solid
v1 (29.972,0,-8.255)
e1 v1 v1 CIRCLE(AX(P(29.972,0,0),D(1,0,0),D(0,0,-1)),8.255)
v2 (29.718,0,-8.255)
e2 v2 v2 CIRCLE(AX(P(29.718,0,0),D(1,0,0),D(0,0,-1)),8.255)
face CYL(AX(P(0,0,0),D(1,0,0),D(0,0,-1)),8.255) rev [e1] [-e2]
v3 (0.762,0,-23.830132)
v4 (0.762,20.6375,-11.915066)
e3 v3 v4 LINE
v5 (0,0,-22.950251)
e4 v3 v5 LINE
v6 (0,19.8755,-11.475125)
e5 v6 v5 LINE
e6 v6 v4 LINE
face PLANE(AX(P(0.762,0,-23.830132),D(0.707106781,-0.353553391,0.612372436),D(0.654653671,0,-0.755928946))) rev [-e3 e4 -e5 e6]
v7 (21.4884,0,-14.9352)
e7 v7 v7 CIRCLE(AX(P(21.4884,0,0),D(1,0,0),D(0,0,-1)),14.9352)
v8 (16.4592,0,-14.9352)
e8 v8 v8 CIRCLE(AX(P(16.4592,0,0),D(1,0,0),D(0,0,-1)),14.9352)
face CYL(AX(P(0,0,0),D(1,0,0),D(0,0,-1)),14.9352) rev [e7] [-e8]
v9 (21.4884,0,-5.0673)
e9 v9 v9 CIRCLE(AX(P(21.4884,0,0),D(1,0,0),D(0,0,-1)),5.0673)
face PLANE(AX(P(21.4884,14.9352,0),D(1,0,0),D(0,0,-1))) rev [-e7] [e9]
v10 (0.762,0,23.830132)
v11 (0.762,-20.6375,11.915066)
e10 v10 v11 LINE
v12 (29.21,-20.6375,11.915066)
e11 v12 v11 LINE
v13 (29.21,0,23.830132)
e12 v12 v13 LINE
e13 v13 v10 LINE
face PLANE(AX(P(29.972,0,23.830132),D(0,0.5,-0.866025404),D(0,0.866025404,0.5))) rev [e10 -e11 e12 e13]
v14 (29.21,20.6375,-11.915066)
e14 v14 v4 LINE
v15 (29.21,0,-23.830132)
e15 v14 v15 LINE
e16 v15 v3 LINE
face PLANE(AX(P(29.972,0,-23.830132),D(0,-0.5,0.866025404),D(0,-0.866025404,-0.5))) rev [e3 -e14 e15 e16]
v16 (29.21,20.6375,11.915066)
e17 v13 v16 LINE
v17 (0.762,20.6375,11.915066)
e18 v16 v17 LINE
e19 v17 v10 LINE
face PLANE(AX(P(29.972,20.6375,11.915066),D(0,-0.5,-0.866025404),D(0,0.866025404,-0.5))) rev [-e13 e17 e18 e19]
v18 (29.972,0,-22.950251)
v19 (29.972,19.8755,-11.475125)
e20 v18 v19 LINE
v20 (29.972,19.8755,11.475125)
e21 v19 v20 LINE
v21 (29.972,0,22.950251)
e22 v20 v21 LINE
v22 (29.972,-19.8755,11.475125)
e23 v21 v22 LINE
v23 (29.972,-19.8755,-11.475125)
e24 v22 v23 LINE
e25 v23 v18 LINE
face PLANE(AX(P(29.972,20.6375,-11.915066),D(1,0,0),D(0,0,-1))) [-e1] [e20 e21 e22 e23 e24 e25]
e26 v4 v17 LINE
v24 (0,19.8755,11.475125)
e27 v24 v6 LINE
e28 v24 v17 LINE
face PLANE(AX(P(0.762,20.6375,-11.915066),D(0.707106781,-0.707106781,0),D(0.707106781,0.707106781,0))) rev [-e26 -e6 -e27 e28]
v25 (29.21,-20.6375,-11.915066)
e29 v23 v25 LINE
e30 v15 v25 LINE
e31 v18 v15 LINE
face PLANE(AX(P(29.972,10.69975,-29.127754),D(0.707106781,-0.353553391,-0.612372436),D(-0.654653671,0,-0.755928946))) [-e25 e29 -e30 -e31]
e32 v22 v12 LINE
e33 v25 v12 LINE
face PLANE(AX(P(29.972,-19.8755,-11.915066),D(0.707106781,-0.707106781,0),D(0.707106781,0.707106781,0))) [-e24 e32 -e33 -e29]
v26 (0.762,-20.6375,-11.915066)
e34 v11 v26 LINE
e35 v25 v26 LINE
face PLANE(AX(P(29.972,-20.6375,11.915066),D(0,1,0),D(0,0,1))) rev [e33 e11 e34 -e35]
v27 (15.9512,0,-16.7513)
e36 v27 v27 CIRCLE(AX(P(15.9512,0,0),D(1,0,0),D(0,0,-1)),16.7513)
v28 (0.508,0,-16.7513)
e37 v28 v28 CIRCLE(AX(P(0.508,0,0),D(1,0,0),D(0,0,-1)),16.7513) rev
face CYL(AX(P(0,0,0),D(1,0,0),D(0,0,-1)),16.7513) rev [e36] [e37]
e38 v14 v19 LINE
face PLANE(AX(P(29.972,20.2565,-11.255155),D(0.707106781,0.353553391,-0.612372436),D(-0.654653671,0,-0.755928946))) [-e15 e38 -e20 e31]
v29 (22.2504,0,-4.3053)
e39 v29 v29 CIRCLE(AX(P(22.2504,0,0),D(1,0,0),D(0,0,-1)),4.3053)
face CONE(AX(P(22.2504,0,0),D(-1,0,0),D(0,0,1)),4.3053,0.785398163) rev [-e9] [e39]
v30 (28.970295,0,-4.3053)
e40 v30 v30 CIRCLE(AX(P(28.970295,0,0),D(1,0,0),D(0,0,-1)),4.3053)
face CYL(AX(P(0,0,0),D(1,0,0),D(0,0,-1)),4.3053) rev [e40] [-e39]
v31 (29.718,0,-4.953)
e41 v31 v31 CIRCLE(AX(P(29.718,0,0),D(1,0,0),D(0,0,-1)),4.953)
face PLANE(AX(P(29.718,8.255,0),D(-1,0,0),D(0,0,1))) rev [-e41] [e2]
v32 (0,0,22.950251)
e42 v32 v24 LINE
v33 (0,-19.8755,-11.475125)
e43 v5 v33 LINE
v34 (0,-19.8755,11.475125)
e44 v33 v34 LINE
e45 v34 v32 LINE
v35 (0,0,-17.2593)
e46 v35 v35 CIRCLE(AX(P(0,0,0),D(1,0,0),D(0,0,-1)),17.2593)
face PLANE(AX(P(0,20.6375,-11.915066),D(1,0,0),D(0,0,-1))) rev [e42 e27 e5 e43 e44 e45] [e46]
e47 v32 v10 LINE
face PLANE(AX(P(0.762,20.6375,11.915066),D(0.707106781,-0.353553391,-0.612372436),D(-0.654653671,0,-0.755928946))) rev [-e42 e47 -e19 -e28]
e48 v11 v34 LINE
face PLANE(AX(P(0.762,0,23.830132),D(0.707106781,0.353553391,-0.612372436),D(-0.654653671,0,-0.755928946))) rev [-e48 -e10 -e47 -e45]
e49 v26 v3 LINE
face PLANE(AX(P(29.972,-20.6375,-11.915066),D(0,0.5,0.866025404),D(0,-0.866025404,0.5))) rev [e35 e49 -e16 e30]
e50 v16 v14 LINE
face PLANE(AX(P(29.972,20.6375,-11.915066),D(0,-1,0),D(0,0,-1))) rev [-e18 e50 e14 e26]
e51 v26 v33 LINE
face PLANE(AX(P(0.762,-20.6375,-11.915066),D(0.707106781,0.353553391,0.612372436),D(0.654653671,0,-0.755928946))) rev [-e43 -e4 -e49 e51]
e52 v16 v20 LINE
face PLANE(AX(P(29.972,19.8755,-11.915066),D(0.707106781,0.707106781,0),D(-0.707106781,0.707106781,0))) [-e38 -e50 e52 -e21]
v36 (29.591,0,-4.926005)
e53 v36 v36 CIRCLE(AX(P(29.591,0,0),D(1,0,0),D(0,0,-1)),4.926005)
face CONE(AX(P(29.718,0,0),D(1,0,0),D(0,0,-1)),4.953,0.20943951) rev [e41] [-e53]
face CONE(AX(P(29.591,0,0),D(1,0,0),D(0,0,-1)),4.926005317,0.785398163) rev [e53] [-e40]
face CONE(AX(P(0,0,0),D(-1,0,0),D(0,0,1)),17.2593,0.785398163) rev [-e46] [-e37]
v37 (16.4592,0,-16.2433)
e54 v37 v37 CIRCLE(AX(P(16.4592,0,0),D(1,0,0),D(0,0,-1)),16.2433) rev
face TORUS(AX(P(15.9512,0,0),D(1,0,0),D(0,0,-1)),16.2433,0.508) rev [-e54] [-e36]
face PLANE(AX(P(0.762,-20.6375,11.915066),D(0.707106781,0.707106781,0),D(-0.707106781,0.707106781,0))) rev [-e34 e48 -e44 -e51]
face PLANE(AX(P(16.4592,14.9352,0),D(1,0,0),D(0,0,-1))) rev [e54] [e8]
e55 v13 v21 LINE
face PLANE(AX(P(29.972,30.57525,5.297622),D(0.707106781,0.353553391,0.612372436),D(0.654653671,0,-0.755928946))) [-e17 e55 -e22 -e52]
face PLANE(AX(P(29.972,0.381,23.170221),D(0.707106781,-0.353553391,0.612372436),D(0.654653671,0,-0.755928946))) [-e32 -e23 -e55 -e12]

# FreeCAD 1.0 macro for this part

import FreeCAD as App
import Part
import Sketcher

V = App.Vector
Q = App.Units.Quantity


def edges_at(feature, points):
    """Names of the edges that pass closest to the given points."""
    edges = feature.Shape.Edges
    near = lambda p: min(range(len(edges)), key=lambda i: edges[i].distToShape(Part.Vertex(*p))[0])
    return sorted({f"Edge{near(p) + 1}" for p in points})


def add_polygon(sketch, points):
    """Adds a closed chain of lines whose ends are joined by coincident constraints."""
    first, n = sketch.GeometryCount, len(points)
    for a, b in zip(points, points[1:] + points[:1]):
        sketch.addGeometry(Part.LineSegment(App.Vector(*a, 0), App.Vector(*b, 0)), False)
    for i in range(n):
        sketch.addConstraint(Sketcher.Constraint("Coincident", first + i, 2, first + (i + 1) % n, 1))

doc = App.newDocument("Part")
body = doc.addObject("PartDesign::Body", "Body")

sketch1 = body.newObject("Sketcher::SketchObject", "Sketch")
sketch1.AttachmentSupport = (doc.getObject("YZ_Plane"), [""])
sketch1.MapMode = "FlatFace"
add_polygon(sketch1, [(21, -12), (21, 12), (0, 24), (-21, 12), (-21, -12), (0, -24)])
sketch1.addConstraint(Sketcher.Constraint("Vertical", 0))
sketch1.addConstraint(Sketcher.Constraint("Vertical", 3))
sketch1.addConstraint(Sketcher.Constraint("Symmetric", 0, 2, 3, 2, -1, 1))
sketch1.addConstraint(Sketcher.Constraint("Symmetric", 1, 2, 4, 2, -1, 1))
sketch1.addConstraint(Sketcher.Constraint("PointOnObject", 1, 2, -2))
sketch1.addConstraint(Sketcher.Constraint("Parallel", 2, 5))
sketch1.addConstraint(Sketcher.Constraint("Horizontal", 0, 2, 2, 2))
sketch1.addConstraint(Sketcher.Constraint("Angle", 1, Q("150 deg")))
sketch1.addConstraint(Sketcher.Constraint("DistanceX", -1, 1, 0, 2, Q("0.8125 in")))
sketch1.addConstraint(Sketcher.Constraint("DistanceY", 3, 2, 1, 2, Q("35.745199 mm")))
pad1 = body.newObject("PartDesign::Pad", "Pad")
pad1.Profile = sketch1
pad1.Length = Q("1.18 in")

sketch2 = body.newObject("Sketcher::SketchObject", "Sketch001")
sketch2.AttachmentSupport = (doc.getObject("XY_Plane"), [""])
sketch2.MapMode = "FlatFace"
add_polygon(sketch2, [(0, 16.75), (0, 0), (29.97, 0), (29.97, 8.26), (29.72, 8.26), (29.72, 4.95), (29.59, 4.93), (28.97, 4.31), (22.25, 4.31), (21.49, 5.07), (21.49, 14.94), (16.46, 14.94), (16.46, 16.75)])
sketch2.addConstraint(Sketcher.Constraint("Vertical", 0))
sketch2.addConstraint(Sketcher.Constraint("Horizontal", 1))
sketch2.addConstraint(Sketcher.Constraint("Vertical", 2))
sketch2.addConstraint(Sketcher.Constraint("Horizontal", 3))
sketch2.addConstraint(Sketcher.Constraint("Vertical", 4))
sketch2.addConstraint(Sketcher.Constraint("Horizontal", 7))
sketch2.addConstraint(Sketcher.Constraint("Vertical", 9))
sketch2.addConstraint(Sketcher.Constraint("Horizontal", 10))
sketch2.addConstraint(Sketcher.Constraint("Vertical", 11))
sketch2.addConstraint(Sketcher.Constraint("Horizontal", 12))
sketch2.addConstraint(Sketcher.Constraint("Coincident", 0, 2, -1, 1))
sketch2.addConstraint(Sketcher.Constraint("Perpendicular", 6, 8))
sketch2.addConstraint(Sketcher.Constraint("Angle", 5, Q("-168 deg")))
sketch2.addConstraint(Sketcher.Constraint("Angle", 6, Q("-135 deg")))
sketch2.addConstraint(Sketcher.Constraint("DistanceX", 1, 1, 1, 2, Q("1.18 in")))
sketch2.addConstraint(Sketcher.Constraint("DistanceX", 3, 2, 3, 1, Q("0.01 in")))
sketch2.addConstraint(Sketcher.Constraint("DistanceY", 4, 2, 4, 1, Q("0.13 in")))
sketch2.addConstraint(Sketcher.Constraint("DistanceX", 10, 2, 10, 1, Q("0.198 in")))
sketch2.addConstraint(Sketcher.Constraint("DistanceX", 12, 2, 12, 1, Q("0.648 in")))
sketch2.addConstraint(Sketcher.Constraint("DistanceY", 2, 1, 2, 2, Q("0.325 in")))
sketch2.addConstraint(Sketcher.Constraint("DistanceX", 8, 2, 7, 2, Q("0.03 in")))
sketch2.addConstraint(Sketcher.Constraint("DistanceY", 8, 2, 11, 2, Q("0.46 in")))
sketch2.addConstraint(Sketcher.Constraint("DistanceY", 0, 2, 0, 1, Q("0.6595 in")))
sketch2.addConstraint(Sketcher.Constraint("DistanceY", 9, 1, 9, 2, Q("0.3885 in")))
sketch2.addConstraint(Sketcher.Constraint("DistanceX", -1, 1, 5, 2, Q("1.165 in")))
groove = body.newObject("PartDesign::Groove", "Groove")
groove.Profile = sketch2
groove.ReferenceAxis = (sketch2, ["H_Axis"])
groove.Angle = 360
doc.recompute()

chamfer = body.newObject("PartDesign::Chamfer", "Chamfer")
chamfer.Base = (groove, edges_at(groove, [(0, 0, 16.751)]))
chamfer.Size = Q("0.02 in")
doc.recompute()

chamfer2 = body.newObject("PartDesign::Chamfer", "Chamfer001")
chamfer2.Base = (chamfer, edges_at(chamfer, [
    (0, -10.319, -17.873),
    (0, -20.637, 0),
    (0, -10.319, 17.873),
    (0, 10.319, 17.873),
    (0, 20.637, 0),
    (0, 10.319, -17.873),
]))
chamfer2.Size = Q("0.03 in")
doc.recompute()

chamfer3 = body.newObject("PartDesign::Chamfer", "Chamfer002")
chamfer3.Base = (chamfer2, edges_at(chamfer2, [
    (29.972, 10.319, 17.873),
    (29.972, -10.319, 17.873),
    (29.972, -20.637, 0),
    (29.972, -10.319, -17.873),
    (29.972, 10.319, -17.873),
    (29.972, 20.637, 0),
]))
chamfer3.Size = Q("0.03 in")
doc.recompute()

fillet = body.newObject("PartDesign::Fillet", "Fillet")
fillet.Base = (chamfer3, edges_at(chamfer3, [(16.459, 0, 16.751)]))
fillet.Radius = Q("0.02 in")

doc.recompute()
